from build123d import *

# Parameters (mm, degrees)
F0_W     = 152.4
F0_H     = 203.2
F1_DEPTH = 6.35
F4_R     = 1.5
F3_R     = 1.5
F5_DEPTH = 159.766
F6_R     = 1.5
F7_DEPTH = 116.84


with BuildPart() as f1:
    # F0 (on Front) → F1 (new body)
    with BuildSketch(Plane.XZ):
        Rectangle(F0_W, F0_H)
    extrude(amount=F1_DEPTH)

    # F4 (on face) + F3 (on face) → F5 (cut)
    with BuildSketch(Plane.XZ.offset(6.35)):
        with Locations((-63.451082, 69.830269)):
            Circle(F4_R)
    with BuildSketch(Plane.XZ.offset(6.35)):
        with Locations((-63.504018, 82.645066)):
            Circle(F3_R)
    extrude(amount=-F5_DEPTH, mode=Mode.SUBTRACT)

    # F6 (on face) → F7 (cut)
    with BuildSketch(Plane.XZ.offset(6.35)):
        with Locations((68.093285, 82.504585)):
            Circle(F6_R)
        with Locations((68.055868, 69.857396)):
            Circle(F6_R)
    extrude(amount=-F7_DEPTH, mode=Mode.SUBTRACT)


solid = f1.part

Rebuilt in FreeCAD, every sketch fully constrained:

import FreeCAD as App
import Part
import Sketcher
Q = App.Units.Quantity

doc = App.newDocument("Part")
body = doc.addObject("PartDesign::Body", "Body")

sketch1 = body.newObject("Sketcher::SketchObject", "Sketch")
sketch1.AttachmentSupport = (doc.getObject("XZ_Plane"), [""])
sketch1.MapMode = "FlatFace"
sketch1.addGeometry([
    Part.LineSegment(App.Vector(-76, 102, 0), App.Vector(-76, -102, 0)),
    Part.LineSegment(App.Vector(-76, -102, 0), App.Vector(76, -102, 0)),
    Part.LineSegment(App.Vector(76, -102, 0), App.Vector(76, 102, 0)),
    Part.LineSegment(App.Vector(76, 102, 0), App.Vector(-76, 102, 0)),
], False)
sketch1.addConstraint([
    Sketcher.Constraint("Coincident", 0, 2, 1, 1),
    Sketcher.Constraint("Coincident", 1, 2, 2, 1),
    Sketcher.Constraint("Coincident", 2, 2, 3, 1),
    Sketcher.Constraint("Coincident", 3, 2, 0, 1),
    Sketcher.Constraint("Vertical", 0),
    Sketcher.Constraint("Horizontal", 1),
    Sketcher.Constraint("Vertical", 2),
    Sketcher.Constraint("Horizontal", 3),
    Sketcher.Constraint("Symmetric", 0, 2, 2, 2, -1, 1),
    Sketcher.Constraint("DistanceX", 1, 1, 1, 2, Q("6 in")),
    Sketcher.Constraint("DistanceY", 0, 2, 0, 1, Q("8 in")),
])
pad1 = body.newObject("PartDesign::Pad", "Pad")
pad1.Profile = sketch1
pad1.Length = Q("0.25 in")

sketch2 = body.newObject("Sketcher::SketchObject", "Sketch001")
sketch2.AttachmentSupport = (doc.getObject("XZ_Plane"), [""])
sketch2.MapMode = "FlatFace"
sketch2.AttachmentOffset = App.Placement(App.Vector(0, 0, 0.25 * 25.4), App.Rotation())
sketch2.addGeometry([
    Part.Circle(App.Vector(-63.5, 69.8, 0), App.Vector(0, 0, 1), 1.5),
    Part.Circle(App.Vector(-63.5, 82.6, 0), App.Vector(0, 0, 1), 1.5),
], False)
sketch2.addConstraint([
    Sketcher.Constraint("Equal", 0, 1),
    Sketcher.Constraint("Diameter", 0, 3.0),
    Sketcher.Constraint("DistanceY", -1, 1, 0, 3, 69.830269),
    Sketcher.Constraint("DistanceX", 1, 3, -1, 1, 63.504018),
    Sketcher.Constraint("DistanceX", 0, 3, -1, 1, 63.451082),
    Sketcher.Constraint("DistanceY", -1, 1, 1, 3, 82.645066),
])
pocket1 = body.newObject("PartDesign::Pocket", "Pocket")
pocket1.Profile = sketch2
pocket1.Length = Q("6.29 in")

sketch3 = body.newObject("Sketcher::SketchObject", "Sketch002")
sketch3.AttachmentSupport = (doc.getObject("XZ_Plane"), [""])
sketch3.MapMode = "FlatFace"
sketch3.AttachmentOffset = App.Placement(App.Vector(0, 0, 0.25 * 25.4), App.Rotation())
sketch3.addGeometry([
    Part.Circle(App.Vector(68.1, 82.5, 0), App.Vector(0, 0, 1), 1.5),
    Part.Circle(App.Vector(68.1, 69.9, 0), App.Vector(0, 0, 1), 1.5),
], False)
sketch3.addConstraint([
    Sketcher.Constraint("Equal", 0, 1),
    Sketcher.Constraint("Diameter", 0, 3.0),
    Sketcher.Constraint("DistanceX", -1, 1, 1, 3, 68.055868),
    Sketcher.Constraint("DistanceY", 1, 3, 0, 3, 12.647189),
    Sketcher.Constraint("DistanceX", -1, 1, 0, 3, 68.093285),
    Sketcher.Constraint("DistanceY", -1, 1, 0, 3, 82.504585),
])
pocket2 = body.newObject("PartDesign::Pocket", "Pocket001")
pocket2.Profile = sketch3
pocket2.Length = Q("4.6 in")

doc.recompute()
